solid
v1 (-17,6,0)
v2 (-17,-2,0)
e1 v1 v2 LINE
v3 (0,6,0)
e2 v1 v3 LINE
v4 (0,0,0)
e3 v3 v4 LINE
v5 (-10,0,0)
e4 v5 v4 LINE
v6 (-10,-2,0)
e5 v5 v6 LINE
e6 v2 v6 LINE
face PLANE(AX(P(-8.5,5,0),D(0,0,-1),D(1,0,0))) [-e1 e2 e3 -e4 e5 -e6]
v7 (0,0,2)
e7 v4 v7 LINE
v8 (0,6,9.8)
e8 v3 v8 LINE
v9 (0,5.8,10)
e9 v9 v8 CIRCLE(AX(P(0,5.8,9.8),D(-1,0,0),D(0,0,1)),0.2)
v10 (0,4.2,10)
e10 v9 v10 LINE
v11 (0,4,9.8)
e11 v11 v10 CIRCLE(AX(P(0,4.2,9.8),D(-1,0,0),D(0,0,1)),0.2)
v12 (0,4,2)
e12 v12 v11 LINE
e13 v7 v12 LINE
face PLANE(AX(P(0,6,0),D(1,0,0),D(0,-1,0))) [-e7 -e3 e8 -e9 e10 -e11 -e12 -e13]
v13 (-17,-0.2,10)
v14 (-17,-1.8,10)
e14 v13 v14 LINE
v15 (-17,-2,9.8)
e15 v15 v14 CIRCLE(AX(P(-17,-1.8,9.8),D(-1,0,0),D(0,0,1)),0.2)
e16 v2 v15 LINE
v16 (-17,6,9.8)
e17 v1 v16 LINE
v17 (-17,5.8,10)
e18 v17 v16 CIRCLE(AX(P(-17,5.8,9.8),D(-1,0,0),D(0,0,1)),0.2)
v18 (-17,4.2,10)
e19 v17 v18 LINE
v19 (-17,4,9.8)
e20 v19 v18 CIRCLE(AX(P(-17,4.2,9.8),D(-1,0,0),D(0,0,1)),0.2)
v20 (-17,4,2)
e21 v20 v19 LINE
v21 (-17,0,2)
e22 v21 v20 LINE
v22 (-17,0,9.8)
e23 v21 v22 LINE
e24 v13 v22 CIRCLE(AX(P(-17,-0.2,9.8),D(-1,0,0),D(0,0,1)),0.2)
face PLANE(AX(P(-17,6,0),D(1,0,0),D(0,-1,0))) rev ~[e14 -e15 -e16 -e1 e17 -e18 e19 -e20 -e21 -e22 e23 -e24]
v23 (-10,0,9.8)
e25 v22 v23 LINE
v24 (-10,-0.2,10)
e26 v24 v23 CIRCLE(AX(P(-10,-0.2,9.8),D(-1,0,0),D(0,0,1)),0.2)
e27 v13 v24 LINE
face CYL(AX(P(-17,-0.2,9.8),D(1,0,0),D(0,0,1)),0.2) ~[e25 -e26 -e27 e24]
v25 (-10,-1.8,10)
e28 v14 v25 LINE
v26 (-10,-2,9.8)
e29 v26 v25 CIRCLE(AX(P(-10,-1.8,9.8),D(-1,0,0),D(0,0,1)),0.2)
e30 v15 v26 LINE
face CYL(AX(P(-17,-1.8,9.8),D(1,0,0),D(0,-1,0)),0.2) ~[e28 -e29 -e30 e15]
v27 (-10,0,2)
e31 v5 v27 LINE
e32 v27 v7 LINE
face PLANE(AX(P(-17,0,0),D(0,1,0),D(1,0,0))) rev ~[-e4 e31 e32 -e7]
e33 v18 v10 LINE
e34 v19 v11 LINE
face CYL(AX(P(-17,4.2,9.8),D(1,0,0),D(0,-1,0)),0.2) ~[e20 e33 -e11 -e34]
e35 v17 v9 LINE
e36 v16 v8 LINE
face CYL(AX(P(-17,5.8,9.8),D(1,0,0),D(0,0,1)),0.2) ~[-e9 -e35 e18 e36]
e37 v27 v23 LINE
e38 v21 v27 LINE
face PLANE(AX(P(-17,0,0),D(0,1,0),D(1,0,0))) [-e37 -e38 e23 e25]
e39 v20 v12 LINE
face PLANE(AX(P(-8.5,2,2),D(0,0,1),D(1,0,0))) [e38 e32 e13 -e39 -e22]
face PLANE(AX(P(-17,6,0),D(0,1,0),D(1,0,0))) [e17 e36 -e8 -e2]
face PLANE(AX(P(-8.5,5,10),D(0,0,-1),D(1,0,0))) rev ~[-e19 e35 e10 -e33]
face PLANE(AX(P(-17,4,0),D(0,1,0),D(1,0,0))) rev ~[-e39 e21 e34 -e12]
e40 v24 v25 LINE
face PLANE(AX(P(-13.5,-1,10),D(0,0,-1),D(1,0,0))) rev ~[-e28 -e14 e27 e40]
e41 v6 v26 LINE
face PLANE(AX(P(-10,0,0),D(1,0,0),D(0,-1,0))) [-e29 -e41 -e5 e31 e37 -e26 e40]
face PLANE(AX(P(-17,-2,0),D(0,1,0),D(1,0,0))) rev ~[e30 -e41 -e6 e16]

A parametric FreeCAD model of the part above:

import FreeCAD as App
import Part
import Sketcher


def edges_at(feature, points):
    """Names of the edges that pass closest to the given points."""
    edges = feature.Shape.Edges
    near = lambda p: min(range(len(edges)), key=lambda i: edges[i].distToShape(Part.Vertex(*p))[0])
    return sorted({f"Edge{near(p) + 1}" for p in points})

doc = App.newDocument("Part")
params = doc.addObject("Spreadsheet::Sheet", "Params")
for row, (alias, value) in enumerate([
    ("sketch1_width", "17 mm"),
    ("sketch1_height", "4 mm"),
    ("pad1_length", "2 mm"),
    ("sketch2_width", "17 mm"),
    ("sketch2_width2", "7 mm"),
    ("sketch2_height", "2 mm"),
    ("pad2_length", "10 mm"),
    ("fillet_radius", "0.2 mm"),
], start=1):
    params.set(f"A{row}", alias)
    params.set(f"B{row}", "=" + value)
    params.setAlias(f"B{row}", alias)

body = doc.addObject("PartDesign::Body", "Body")

sketch1 = body.newObject("Sketcher::SketchObject", "Sketch")
sketch1.AttachmentSupport = (doc.getObject("XY_Plane"), [""])
sketch1.MapMode = "FlatFace"
sketch1.addGeometry([
    Part.LineSegment(App.Vector(-17, 4, 0), App.Vector(-17, 0, 0)),
    Part.LineSegment(App.Vector(-17, 0, 0), App.Vector(0, 0, 0)),
    Part.LineSegment(App.Vector(0, 0, 0), App.Vector(0, 4, 0)),
    Part.LineSegment(App.Vector(0, 4, 0), App.Vector(-17, 4, 0)),
], False)
sketch1.addConstraint([
    Sketcher.Constraint("Coincident", 0, 2, 1, 1),
    Sketcher.Constraint("Coincident", 1, 2, 2, 1),
    Sketcher.Constraint("Coincident", 2, 2, 3, 1),
    Sketcher.Constraint("Coincident", 3, 2, 0, 1),
    Sketcher.Constraint("Vertical", 0),
    Sketcher.Constraint("Horizontal", 1),
    Sketcher.Constraint("Vertical", 2),
    Sketcher.Constraint("Horizontal", 3),
    Sketcher.Constraint("Coincident", 1, 2, -1, 1),
    Sketcher.Constraint("DistanceX", 1, 1, 1, 2, 17.0),
    Sketcher.Constraint("DistanceY", 0, 2, 0, 1, 4.0),
])
sketch1.setExpression("Constraints[9]", "Params.sketch1_width")
sketch1.setExpression("Constraints[10]", "Params.sketch1_height")
pad1 = body.newObject("PartDesign::Pad", "Pad")
pad1.Profile = sketch1
pad1.setExpression("Length", "Params.pad1_length")

sketch2 = body.newObject("Sketcher::SketchObject", "Sketch001")
sketch2.AttachmentSupport = (doc.getObject("XY_Plane"), [""])
sketch2.MapMode = "FlatFace"
sketch2.addGeometry([
    Part.LineSegment(App.Vector(-17, 4, 0), App.Vector(-17, 6, 0)),
    Part.LineSegment(App.Vector(-17, 6, 0), App.Vector(0, 6, 0)),
    Part.LineSegment(App.Vector(0, 6, 0), App.Vector(0, 4, 0)),
    Part.LineSegment(App.Vector(0, 4, 0), App.Vector(-17, 4, 0)),
    Part.LineSegment(App.Vector(-17, -2, 0), App.Vector(-17, 0, 0)),
    Part.LineSegment(App.Vector(-17, 0, 0), App.Vector(-10, 0, 0)),
    Part.LineSegment(App.Vector(-10, 0, 0), App.Vector(-10, -2, 0)),
    Part.LineSegment(App.Vector(-10, -2, 0), App.Vector(-17, -2, 0)),
], False)
sketch2.addConstraint([
    Sketcher.Constraint("Coincident", 0, 2, 1, 1),
    Sketcher.Constraint("Coincident", 1, 2, 2, 1),
    Sketcher.Constraint("Coincident", 2, 2, 3, 1),
    Sketcher.Constraint("Coincident", 3, 2, 0, 1),
    Sketcher.Constraint("Coincident", 4, 2, 5, 1),
    Sketcher.Constraint("Coincident", 5, 2, 6, 1),
    Sketcher.Constraint("Coincident", 6, 2, 7, 1),
    Sketcher.Constraint("Coincident", 7, 2, 4, 1),
    Sketcher.Constraint("Vertical", 0),
    Sketcher.Constraint("Horizontal", 1),
    Sketcher.Constraint("Vertical", 2),
    Sketcher.Constraint("Horizontal", 3),
    Sketcher.Constraint("Vertical", 4),
    Sketcher.Constraint("Horizontal", 5),
    Sketcher.Constraint("Vertical", 6),
    Sketcher.Constraint("Horizontal", 7),
    Sketcher.Constraint("PointOnObject", 1, 2, -2),
    Sketcher.Constraint("PointOnObject", 4, 2, -1),
    Sketcher.Constraint("Vertical", 3, 2, 4, 2),
    Sketcher.Constraint("Equal", 2, 4),
    Sketcher.Constraint("DistanceX", 1, 1, 1, 2, 17.0),
    Sketcher.Constraint("DistanceX", 5, 1, 5, 2, 7.0),
    Sketcher.Constraint("DistanceY", 0, 1, 0, 2, 2.0),
    Sketcher.Constraint("DistanceY", -1, 1, 0, 2, 6.0),
])
sketch2.setExpression("Constraints[20]", "Params.sketch2_width")
sketch2.setExpression("Constraints[21]", "Params.sketch2_width2")
sketch2.setExpression("Constraints[22]", "Params.sketch2_height")
pad2 = body.newObject("PartDesign::Pad", "Pad001")
pad2.Profile = sketch2
pad2.setExpression("Length", "Params.pad2_length")
doc.recompute()

fillet = body.newObject("PartDesign::Fillet", "Fillet")
fillet.Base = (pad2, edges_at(pad2, [
    (-13.5, -2, 10),
    (-13.5, 0, 10),
    (-8.5, 4, 10),
    (-8.5, 6, 10),
]))
fillet.setExpression("Radius", "Params.fillet_radius")

doc.recompute()
